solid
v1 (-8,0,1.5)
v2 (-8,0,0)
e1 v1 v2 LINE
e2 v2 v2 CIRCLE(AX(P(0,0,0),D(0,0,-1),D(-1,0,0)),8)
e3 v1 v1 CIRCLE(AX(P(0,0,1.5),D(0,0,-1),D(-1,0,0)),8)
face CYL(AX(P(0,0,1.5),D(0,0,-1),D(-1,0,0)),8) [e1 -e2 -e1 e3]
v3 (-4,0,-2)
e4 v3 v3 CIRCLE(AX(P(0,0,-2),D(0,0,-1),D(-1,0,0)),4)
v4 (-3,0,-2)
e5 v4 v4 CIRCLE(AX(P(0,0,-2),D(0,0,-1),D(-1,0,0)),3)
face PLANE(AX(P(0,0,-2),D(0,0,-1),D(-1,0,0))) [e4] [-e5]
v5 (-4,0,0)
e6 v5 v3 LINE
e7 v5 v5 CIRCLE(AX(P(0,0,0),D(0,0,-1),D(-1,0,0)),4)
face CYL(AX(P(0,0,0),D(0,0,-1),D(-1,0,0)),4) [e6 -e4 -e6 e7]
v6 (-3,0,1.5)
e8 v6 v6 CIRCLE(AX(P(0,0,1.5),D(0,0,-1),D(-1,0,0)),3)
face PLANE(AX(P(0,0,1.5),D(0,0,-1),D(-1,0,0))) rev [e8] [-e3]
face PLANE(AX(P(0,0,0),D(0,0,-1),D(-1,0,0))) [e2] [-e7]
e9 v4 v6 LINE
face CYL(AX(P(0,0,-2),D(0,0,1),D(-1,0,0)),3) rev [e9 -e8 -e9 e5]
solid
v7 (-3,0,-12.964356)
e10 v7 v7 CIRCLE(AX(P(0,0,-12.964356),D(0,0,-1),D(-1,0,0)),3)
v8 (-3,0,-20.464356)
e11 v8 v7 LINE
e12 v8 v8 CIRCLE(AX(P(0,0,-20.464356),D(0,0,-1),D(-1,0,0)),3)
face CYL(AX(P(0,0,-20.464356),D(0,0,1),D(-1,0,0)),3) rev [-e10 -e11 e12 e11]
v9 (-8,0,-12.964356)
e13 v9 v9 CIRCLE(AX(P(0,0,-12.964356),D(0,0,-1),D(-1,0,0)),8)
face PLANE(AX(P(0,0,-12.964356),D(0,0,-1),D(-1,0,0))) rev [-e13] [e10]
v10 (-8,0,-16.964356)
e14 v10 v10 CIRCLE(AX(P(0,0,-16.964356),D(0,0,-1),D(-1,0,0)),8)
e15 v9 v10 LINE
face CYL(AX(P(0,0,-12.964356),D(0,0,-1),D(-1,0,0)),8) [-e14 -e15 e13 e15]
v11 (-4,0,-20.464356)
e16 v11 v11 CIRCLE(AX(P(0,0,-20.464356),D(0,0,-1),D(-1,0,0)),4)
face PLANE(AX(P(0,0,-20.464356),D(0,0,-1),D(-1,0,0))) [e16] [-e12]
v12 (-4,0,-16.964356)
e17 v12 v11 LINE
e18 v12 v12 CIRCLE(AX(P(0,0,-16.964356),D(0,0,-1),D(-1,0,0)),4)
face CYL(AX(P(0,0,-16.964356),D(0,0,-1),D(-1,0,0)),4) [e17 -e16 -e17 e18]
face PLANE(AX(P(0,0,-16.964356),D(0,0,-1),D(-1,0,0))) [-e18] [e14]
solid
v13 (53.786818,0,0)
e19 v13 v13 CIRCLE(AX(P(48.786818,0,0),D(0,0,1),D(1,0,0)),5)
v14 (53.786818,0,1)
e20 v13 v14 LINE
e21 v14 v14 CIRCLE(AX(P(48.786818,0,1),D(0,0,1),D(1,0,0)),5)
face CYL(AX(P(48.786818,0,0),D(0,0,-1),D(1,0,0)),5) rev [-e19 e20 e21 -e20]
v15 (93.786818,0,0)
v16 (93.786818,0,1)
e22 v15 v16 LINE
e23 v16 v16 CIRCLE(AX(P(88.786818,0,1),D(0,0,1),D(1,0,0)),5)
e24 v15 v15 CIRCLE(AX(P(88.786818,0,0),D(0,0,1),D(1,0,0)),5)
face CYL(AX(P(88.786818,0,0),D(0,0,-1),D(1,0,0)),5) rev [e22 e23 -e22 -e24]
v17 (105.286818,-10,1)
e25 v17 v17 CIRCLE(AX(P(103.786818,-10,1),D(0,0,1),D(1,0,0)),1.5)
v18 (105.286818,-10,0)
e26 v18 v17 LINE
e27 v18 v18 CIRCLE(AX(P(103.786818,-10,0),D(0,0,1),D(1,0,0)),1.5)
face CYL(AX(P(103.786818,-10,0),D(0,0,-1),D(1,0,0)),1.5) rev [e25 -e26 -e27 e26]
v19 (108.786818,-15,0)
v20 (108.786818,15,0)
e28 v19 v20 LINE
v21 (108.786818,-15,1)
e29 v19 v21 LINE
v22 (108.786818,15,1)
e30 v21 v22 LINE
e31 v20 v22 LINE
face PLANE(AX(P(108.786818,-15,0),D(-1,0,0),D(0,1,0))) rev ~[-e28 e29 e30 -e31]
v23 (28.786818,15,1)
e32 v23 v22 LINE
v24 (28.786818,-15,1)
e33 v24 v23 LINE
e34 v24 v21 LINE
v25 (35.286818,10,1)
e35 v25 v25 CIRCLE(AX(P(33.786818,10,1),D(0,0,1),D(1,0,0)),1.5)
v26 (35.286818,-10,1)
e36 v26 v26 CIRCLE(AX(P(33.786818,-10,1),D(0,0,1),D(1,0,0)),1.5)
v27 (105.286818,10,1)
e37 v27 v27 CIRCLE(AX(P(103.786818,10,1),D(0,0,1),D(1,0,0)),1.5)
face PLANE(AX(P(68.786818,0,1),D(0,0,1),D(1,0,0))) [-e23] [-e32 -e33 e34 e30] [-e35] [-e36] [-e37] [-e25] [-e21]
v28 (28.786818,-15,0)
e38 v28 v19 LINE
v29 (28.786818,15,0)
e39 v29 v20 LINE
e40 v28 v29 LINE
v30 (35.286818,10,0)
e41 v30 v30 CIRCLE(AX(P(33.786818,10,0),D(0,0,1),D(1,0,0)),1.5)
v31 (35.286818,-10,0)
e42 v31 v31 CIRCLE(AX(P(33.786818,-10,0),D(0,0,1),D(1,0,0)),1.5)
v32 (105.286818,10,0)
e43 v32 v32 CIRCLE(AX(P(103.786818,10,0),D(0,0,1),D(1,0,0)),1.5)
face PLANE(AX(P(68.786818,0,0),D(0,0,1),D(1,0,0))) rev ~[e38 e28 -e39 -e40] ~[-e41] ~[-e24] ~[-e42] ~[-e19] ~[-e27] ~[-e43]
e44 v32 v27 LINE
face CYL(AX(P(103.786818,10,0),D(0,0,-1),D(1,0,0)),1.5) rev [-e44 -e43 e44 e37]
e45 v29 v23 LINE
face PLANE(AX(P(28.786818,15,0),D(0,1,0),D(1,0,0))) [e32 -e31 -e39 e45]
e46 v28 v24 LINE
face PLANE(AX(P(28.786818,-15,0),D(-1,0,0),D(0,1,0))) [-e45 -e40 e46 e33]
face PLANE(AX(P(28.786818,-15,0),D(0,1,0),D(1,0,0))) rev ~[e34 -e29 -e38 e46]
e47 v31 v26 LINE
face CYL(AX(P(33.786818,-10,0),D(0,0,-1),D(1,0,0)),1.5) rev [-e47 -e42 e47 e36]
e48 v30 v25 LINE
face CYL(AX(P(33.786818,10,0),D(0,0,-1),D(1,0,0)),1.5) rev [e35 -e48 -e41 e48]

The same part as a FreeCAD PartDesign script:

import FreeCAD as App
import Part
import Sketcher

doc = App.newDocument("Part")
body = doc.addObject("PartDesign::Body", "Body")

# Sketch on XZ plane
sketch1 = body.newObject("Sketcher::SketchObject", "Sketch")
sketch1.AttachmentSupport = (doc.getObject("XZ_Plane"), [""])
sketch1.MapMode = "FlatFace"
sketch1.addGeometry([
    Part.LineSegment(App.Vector(-3, -2, 0), App.Vector(-3, 1.5, 0)),  # 0
    Part.LineSegment(App.Vector(-3, 1.5, 0), App.Vector(-8, 1.5, 0)),  # 1
    Part.LineSegment(App.Vector(-8, 1.5, 0), App.Vector(-8, 0, 0)),  # 2
    Part.LineSegment(App.Vector(-8, 0, 0), App.Vector(-4, 0, 0)),  # 3
    Part.LineSegment(App.Vector(-4, 0, 0), App.Vector(-4, -2, 0)),  # 4
    Part.LineSegment(App.Vector(-4, -2, 0), App.Vector(-3, -2, 0)),  # 5
], False)
sketch1.addConstraint([
    Sketcher.Constraint("Coincident", 0, 2, 1, 1),
    Sketcher.Constraint("Coincident", 1, 2, 2, 1),
    Sketcher.Constraint("Coincident", 2, 2, 3, 1),
    Sketcher.Constraint("Coincident", 3, 2, 4, 1),
    Sketcher.Constraint("Coincident", 4, 2, 5, 1),
    Sketcher.Constraint("Coincident", 5, 2, 0, 1),
    Sketcher.Constraint("Vertical", 0),
    Sketcher.Constraint("Horizontal", 1),
    Sketcher.Constraint("Vertical", 2),
    Sketcher.Constraint("Horizontal", 3),
    Sketcher.Constraint("Vertical", 4),
    Sketcher.Constraint("Horizontal", 5),
    Sketcher.Constraint("PointOnObject", 2, 2, -1),
    Sketcher.Constraint("DistanceX", 1, 2, 1, 1, 5.0),
    Sketcher.Constraint("DistanceX", 3, 1, 3, 2, 4.0),
    Sketcher.Constraint("DistanceY", 4, 2, 4, 1, 2.0),
    Sketcher.Constraint("DistanceY", 0, 1, 0, 2, 3.5),
    Sketcher.Constraint("DistanceX", 0, 2, -1, 1, 3.0),
])
revolution = body.newObject("PartDesign::Revolution", "Revolution")
revolution.Profile = sketch1
revolution.ReferenceAxis = (sketch1, ["V_Axis"])
revolution.Angle = 360
body2 = doc.addObject("PartDesign::Body", "Body001")

# Sketch on XY plane
sketch2 = body2.newObject("Sketcher::SketchObject", "Sketch001")
sketch2.AttachmentSupport = (doc.getObject("XY_Plane001"), [""])
sketch2.MapMode = "FlatFace"
sketch2.addGeometry([
    Part.LineSegment(App.Vector(28.8, 15, 0), App.Vector(28.8, -15, 0)),  # 0
    Part.LineSegment(App.Vector(28.8, -15, 0), App.Vector(108.8, -15, 0)),  # 1
    Part.LineSegment(App.Vector(108.8, -15, 0), App.Vector(108.8, 15, 0)),  # 2
    Part.LineSegment(App.Vector(108.8, 15, 0), App.Vector(28.8, 15, 0)),  # 3
    Part.Circle(App.Vector(33.8, -10, 0), App.Vector(0, 0, 1), 1.5),  # 4
    Part.Circle(App.Vector(103.8, -10, 0), App.Vector(0, 0, 1), 1.5),  # 5
    Part.Circle(App.Vector(48.8, 0, 0), App.Vector(0, 0, 1), 5),  # 6
    Part.Circle(App.Vector(33.8, 10, 0), App.Vector(0, 0, 1), 1.5),  # 7
    Part.Circle(App.Vector(88.8, 0, 0), App.Vector(0, 0, 1), 5),  # 8
    Part.Circle(App.Vector(103.8, 10, 0), App.Vector(0, 0, 1), 1.5),  # 9
], False)
sketch2.addConstraint([
    Sketcher.Constraint("Coincident", 0, 2, 1, 1),
    Sketcher.Constraint("Coincident", 1, 2, 2, 1),
    Sketcher.Constraint("Coincident", 2, 2, 3, 1),
    Sketcher.Constraint("Coincident", 3, 2, 0, 1),
    Sketcher.Constraint("Vertical", 0),
    Sketcher.Constraint("Horizontal", 1),
    Sketcher.Constraint("Vertical", 2),
    Sketcher.Constraint("Horizontal", 3),
    Sketcher.Constraint("Equal", 4, 5),
    Sketcher.Constraint("Equal", 5, 7),
    Sketcher.Constraint("Equal", 6, 8),
    Sketcher.Constraint("Equal", 7, 9),
    Sketcher.Constraint("Symmetric", 4, 3, 7, 3, -1),
    Sketcher.Constraint("Symmetric", 5, 3, 9, 3, -1),
    Sketcher.Constraint("PointOnObject", 6, 3, -1),
    Sketcher.Constraint("PointOnObject", 8, 3, -1),
    Sketcher.Constraint("Horizontal", 4, 3, 5, 3),
    Sketcher.Constraint("Diameter", 4, 3.0),
    Sketcher.Constraint("Diameter", 6, 10.0),
    Sketcher.Constraint("DistanceX", 1, 1, 1, 2, 80.0),
    Sketcher.Constraint("DistanceY", 0, 2, 0, 1, 30.0),
    Sketcher.Constraint("DistanceY", 4, 3, -1, 1, 10.0),
    Sketcher.Constraint("DistanceY", 0, 2, -1, 1, 15.0),
    Sketcher.Constraint("DistanceX", 4, 3, 5, 3, 70.0),
    Sketcher.Constraint("DistanceX", 4, 3, 6, 3, 15.0),
    Sketcher.Constraint("DistanceX", 8, 3, 5, 3, 15.0),
    Sketcher.Constraint("DistanceX", 0, 2, 4, 3, 5.0),
    Sketcher.Constraint("DistanceX", -1, 1, 0, 2, 28.786818),
])
pad1 = body2.newObject("PartDesign::Pad", "Pad")
pad1.Profile = sketch2
pad1.Length = 1
body3 = doc.addObject("PartDesign::Body", "Body002")

# Sketch on XZ plane
sketch3 = body3.newObject("Sketcher::SketchObject", "Sketch002")
sketch3.AttachmentSupport = (doc.getObject("XZ_Plane002"), [""])
sketch3.MapMode = "FlatFace"
sketch3.addGeometry([
    Part.LineSegment(App.Vector(-3, -20.5, 0), App.Vector(-3, -13, 0)),  # 0
    Part.LineSegment(App.Vector(-3, -13, 0), App.Vector(-8, -13, 0)),  # 1
    Part.LineSegment(App.Vector(-8, -13, 0), App.Vector(-8, -17, 0)),  # 2
    Part.LineSegment(App.Vector(-8, -17, 0), App.Vector(-4, -17, 0)),  # 3
    Part.LineSegment(App.Vector(-4, -17, 0), App.Vector(-4, -20.5, 0)),  # 4
    Part.LineSegment(App.Vector(-4, -20.5, 0), App.Vector(-3, -20.5, 0)),  # 5
], False)
sketch3.addConstraint([
    Sketcher.Constraint("Coincident", 0, 2, 1, 1),
    Sketcher.Constraint("Coincident", 1, 2, 2, 1),
    Sketcher.Constraint("Coincident", 2, 2, 3, 1),
    Sketcher.Constraint("Coincident", 3, 2, 4, 1),
    Sketcher.Constraint("Coincident", 4, 2, 5, 1),
    Sketcher.Constraint("Coincident", 5, 2, 0, 1),
    Sketcher.Constraint("Vertical", 0),
    Sketcher.Constraint("Horizontal", 1),
    Sketcher.Constraint("Vertical", 2),
    Sketcher.Constraint("Horizontal", 3),
    Sketcher.Constraint("Vertical", 4),
    Sketcher.Constraint("Horizontal", 5),
    Sketcher.Constraint("Equal", 3, 2),
    Sketcher.Constraint("DistanceX", 1, 2, 1, 1, 5.0),
    Sketcher.Constraint("DistanceX", 3, 1, 3, 2, 4.0),
    Sketcher.Constraint("DistanceY", 0, 1, 0, 2, 7.5),
    Sketcher.Constraint("DistanceX", 0, 2, -1, 1, 3.0),
    Sketcher.Constraint("DistanceY", 0, 2, -1, 1, 12.964356),
])
revolution2 = body3.newObject("PartDesign::Revolution", "Revolution001")
revolution2.Profile = sketch3
revolution2.ReferenceAxis = (sketch3, ["V_Axis"])
revolution2.Angle = 360

doc.recompute()
